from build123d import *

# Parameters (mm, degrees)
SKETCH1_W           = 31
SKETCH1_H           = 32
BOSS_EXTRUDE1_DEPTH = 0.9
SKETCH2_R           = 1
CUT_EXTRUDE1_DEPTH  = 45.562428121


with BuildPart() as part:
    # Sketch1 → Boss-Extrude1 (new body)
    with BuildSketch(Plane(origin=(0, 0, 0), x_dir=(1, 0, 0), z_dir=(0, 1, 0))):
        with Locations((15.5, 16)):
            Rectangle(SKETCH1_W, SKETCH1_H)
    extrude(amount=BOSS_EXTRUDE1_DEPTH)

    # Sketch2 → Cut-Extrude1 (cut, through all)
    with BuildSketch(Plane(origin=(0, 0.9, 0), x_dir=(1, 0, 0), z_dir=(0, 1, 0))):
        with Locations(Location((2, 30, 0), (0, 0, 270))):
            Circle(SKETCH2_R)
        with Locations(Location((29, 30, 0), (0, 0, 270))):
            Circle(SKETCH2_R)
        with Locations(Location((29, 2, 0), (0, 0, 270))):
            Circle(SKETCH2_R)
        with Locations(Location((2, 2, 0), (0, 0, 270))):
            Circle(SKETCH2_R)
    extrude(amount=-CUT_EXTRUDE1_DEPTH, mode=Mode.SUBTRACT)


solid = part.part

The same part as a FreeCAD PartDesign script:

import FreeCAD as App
import Part
import Sketcher
from FreeCAD import Vector


def add_polygon(sketch, points):
    """Adds a closed chain of lines whose ends are joined by coincident constraints."""
    first, n = sketch.GeometryCount, len(points)
    for a, b in zip(points, points[1:] + points[:1]):
        sketch.addGeometry(Part.LineSegment(App.Vector(*a, 0), App.Vector(*b, 0)), False)
    for i in range(n):
        sketch.addConstraint(Sketcher.Constraint("Coincident", first + i, 2, first + (i + 1) % n, 1))

doc = App.newDocument("Part")
params = doc.addObject("Spreadsheet::Sheet", "Params")
for row, (alias, value) in enumerate([
    ("sketch1_width", "31 mm"),
    ("sketch1_height", "32 mm"),
    ("pad1_length", "0.9 mm"),
    ("sketch2_diameter", "2 mm"),
], start=1):
    params.set(f"A{row}", alias)
    params.set(f"B{row}", "=" + value)
    params.setAlias(f"B{row}", alias)

body = doc.addObject("PartDesign::Body", "Body")

sketch1 = doc.addObject("Sketcher::SketchObject", "Sketch")
body.addObject(sketch1)
sketch1.AttachmentSupport = (doc.XZ_Plane, [""])
sketch1.MapMode = "FlatFace"
add_polygon(sketch1, [(0, -32), (0, 0), (31, 0), (31, -32)])
sketch1.addConstraint(Sketcher.Constraint("Vertical", 0))
sketch1.addConstraint(Sketcher.Constraint("Horizontal", 1))
sketch1.addConstraint(Sketcher.Constraint("Vertical", 2))
sketch1.addConstraint(Sketcher.Constraint("Horizontal", 3))
sketch1.addConstraint(Sketcher.Constraint("Coincident", 0, 2, -1, 1))
sketch1.addConstraint(Sketcher.Constraint("DistanceX", 1, 1, 1, 2, 31.0))
sketch1.addConstraint(Sketcher.Constraint("DistanceY", 0, 1, 0, 2, 32.0))
sketch1.setExpression("Constraints[9]", "Params.sketch1_width")
sketch1.setExpression("Constraints[10]", "Params.sketch1_height")
pad1 = doc.addObject("PartDesign::Pad", "Pad")
body.addObject(pad1)
pad1.Profile = sketch1
pad1.setExpression("Length", "Params.pad1_length")
pad1.Reversed = True

sketch2 = doc.addObject("Sketcher::SketchObject", "Sketch001")
body.addObject(sketch2)
sketch2.AttachmentSupport = (doc.XZ_Plane, [""])
sketch2.MapMode = "FlatFace"
sketch2.AttachmentOffset = App.Placement(Vector(0, 0, -0.9), App.Rotation())
sketch2.addGeometry(Part.Circle(Vector(2, -30, 0), Vector(0, 0, 1), 1), False)
sketch2.addGeometry(Part.Circle(Vector(29, -30, 0), Vector(0, 0, 1), 1), False)
sketch2.addGeometry(Part.Circle(Vector(29, -2, 0), Vector(0, 0, 1), 1), False)
sketch2.addGeometry(Part.Circle(Vector(2, -2, 0), Vector(0, 0, 1), 1), False)
sketch2.addConstraint(Sketcher.Constraint("Equal", 0, 1))
sketch2.addConstraint(Sketcher.Constraint("Equal", 1, 2))
sketch2.addConstraint(Sketcher.Constraint("Equal", 2, 3))
sketch2.addConstraint(Sketcher.Constraint("Horizontal", 0, 3, 1, 3))
sketch2.addConstraint(Sketcher.Constraint("Horizontal", 2, 3, 3, 3))
sketch2.addConstraint(Sketcher.Constraint("Vertical", 1, 3, 2, 3))
sketch2.addConstraint(Sketcher.Constraint("Vertical", 0, 3, 3, 3))
sketch2.addConstraint(Sketcher.Constraint("Diameter", 0, 2.0))
sketch2.addConstraint(Sketcher.Constraint("DistanceX", -1, 1, 0, 3, 2.0))
sketch2.addConstraint(Sketcher.Constraint("DistanceY", 0, 3, -1, 1, 30.0))
sketch2.addConstraint(Sketcher.Constraint("DistanceX", -1, 1, 1, 3, 29.0))
sketch2.addConstraint(Sketcher.Constraint("DistanceY", 2, 3, -1, 1, 2.0))
sketch2.setExpression("Constraints[7]", "Params.sketch2_diameter")
pocket1 = doc.addObject("PartDesign::Pocket", "Pocket")
body.addObject(pocket1)
pocket1.Profile = sketch2
pocket1.Type = "ThroughAll"
pocket1.Reversed = True

doc.recompute()
